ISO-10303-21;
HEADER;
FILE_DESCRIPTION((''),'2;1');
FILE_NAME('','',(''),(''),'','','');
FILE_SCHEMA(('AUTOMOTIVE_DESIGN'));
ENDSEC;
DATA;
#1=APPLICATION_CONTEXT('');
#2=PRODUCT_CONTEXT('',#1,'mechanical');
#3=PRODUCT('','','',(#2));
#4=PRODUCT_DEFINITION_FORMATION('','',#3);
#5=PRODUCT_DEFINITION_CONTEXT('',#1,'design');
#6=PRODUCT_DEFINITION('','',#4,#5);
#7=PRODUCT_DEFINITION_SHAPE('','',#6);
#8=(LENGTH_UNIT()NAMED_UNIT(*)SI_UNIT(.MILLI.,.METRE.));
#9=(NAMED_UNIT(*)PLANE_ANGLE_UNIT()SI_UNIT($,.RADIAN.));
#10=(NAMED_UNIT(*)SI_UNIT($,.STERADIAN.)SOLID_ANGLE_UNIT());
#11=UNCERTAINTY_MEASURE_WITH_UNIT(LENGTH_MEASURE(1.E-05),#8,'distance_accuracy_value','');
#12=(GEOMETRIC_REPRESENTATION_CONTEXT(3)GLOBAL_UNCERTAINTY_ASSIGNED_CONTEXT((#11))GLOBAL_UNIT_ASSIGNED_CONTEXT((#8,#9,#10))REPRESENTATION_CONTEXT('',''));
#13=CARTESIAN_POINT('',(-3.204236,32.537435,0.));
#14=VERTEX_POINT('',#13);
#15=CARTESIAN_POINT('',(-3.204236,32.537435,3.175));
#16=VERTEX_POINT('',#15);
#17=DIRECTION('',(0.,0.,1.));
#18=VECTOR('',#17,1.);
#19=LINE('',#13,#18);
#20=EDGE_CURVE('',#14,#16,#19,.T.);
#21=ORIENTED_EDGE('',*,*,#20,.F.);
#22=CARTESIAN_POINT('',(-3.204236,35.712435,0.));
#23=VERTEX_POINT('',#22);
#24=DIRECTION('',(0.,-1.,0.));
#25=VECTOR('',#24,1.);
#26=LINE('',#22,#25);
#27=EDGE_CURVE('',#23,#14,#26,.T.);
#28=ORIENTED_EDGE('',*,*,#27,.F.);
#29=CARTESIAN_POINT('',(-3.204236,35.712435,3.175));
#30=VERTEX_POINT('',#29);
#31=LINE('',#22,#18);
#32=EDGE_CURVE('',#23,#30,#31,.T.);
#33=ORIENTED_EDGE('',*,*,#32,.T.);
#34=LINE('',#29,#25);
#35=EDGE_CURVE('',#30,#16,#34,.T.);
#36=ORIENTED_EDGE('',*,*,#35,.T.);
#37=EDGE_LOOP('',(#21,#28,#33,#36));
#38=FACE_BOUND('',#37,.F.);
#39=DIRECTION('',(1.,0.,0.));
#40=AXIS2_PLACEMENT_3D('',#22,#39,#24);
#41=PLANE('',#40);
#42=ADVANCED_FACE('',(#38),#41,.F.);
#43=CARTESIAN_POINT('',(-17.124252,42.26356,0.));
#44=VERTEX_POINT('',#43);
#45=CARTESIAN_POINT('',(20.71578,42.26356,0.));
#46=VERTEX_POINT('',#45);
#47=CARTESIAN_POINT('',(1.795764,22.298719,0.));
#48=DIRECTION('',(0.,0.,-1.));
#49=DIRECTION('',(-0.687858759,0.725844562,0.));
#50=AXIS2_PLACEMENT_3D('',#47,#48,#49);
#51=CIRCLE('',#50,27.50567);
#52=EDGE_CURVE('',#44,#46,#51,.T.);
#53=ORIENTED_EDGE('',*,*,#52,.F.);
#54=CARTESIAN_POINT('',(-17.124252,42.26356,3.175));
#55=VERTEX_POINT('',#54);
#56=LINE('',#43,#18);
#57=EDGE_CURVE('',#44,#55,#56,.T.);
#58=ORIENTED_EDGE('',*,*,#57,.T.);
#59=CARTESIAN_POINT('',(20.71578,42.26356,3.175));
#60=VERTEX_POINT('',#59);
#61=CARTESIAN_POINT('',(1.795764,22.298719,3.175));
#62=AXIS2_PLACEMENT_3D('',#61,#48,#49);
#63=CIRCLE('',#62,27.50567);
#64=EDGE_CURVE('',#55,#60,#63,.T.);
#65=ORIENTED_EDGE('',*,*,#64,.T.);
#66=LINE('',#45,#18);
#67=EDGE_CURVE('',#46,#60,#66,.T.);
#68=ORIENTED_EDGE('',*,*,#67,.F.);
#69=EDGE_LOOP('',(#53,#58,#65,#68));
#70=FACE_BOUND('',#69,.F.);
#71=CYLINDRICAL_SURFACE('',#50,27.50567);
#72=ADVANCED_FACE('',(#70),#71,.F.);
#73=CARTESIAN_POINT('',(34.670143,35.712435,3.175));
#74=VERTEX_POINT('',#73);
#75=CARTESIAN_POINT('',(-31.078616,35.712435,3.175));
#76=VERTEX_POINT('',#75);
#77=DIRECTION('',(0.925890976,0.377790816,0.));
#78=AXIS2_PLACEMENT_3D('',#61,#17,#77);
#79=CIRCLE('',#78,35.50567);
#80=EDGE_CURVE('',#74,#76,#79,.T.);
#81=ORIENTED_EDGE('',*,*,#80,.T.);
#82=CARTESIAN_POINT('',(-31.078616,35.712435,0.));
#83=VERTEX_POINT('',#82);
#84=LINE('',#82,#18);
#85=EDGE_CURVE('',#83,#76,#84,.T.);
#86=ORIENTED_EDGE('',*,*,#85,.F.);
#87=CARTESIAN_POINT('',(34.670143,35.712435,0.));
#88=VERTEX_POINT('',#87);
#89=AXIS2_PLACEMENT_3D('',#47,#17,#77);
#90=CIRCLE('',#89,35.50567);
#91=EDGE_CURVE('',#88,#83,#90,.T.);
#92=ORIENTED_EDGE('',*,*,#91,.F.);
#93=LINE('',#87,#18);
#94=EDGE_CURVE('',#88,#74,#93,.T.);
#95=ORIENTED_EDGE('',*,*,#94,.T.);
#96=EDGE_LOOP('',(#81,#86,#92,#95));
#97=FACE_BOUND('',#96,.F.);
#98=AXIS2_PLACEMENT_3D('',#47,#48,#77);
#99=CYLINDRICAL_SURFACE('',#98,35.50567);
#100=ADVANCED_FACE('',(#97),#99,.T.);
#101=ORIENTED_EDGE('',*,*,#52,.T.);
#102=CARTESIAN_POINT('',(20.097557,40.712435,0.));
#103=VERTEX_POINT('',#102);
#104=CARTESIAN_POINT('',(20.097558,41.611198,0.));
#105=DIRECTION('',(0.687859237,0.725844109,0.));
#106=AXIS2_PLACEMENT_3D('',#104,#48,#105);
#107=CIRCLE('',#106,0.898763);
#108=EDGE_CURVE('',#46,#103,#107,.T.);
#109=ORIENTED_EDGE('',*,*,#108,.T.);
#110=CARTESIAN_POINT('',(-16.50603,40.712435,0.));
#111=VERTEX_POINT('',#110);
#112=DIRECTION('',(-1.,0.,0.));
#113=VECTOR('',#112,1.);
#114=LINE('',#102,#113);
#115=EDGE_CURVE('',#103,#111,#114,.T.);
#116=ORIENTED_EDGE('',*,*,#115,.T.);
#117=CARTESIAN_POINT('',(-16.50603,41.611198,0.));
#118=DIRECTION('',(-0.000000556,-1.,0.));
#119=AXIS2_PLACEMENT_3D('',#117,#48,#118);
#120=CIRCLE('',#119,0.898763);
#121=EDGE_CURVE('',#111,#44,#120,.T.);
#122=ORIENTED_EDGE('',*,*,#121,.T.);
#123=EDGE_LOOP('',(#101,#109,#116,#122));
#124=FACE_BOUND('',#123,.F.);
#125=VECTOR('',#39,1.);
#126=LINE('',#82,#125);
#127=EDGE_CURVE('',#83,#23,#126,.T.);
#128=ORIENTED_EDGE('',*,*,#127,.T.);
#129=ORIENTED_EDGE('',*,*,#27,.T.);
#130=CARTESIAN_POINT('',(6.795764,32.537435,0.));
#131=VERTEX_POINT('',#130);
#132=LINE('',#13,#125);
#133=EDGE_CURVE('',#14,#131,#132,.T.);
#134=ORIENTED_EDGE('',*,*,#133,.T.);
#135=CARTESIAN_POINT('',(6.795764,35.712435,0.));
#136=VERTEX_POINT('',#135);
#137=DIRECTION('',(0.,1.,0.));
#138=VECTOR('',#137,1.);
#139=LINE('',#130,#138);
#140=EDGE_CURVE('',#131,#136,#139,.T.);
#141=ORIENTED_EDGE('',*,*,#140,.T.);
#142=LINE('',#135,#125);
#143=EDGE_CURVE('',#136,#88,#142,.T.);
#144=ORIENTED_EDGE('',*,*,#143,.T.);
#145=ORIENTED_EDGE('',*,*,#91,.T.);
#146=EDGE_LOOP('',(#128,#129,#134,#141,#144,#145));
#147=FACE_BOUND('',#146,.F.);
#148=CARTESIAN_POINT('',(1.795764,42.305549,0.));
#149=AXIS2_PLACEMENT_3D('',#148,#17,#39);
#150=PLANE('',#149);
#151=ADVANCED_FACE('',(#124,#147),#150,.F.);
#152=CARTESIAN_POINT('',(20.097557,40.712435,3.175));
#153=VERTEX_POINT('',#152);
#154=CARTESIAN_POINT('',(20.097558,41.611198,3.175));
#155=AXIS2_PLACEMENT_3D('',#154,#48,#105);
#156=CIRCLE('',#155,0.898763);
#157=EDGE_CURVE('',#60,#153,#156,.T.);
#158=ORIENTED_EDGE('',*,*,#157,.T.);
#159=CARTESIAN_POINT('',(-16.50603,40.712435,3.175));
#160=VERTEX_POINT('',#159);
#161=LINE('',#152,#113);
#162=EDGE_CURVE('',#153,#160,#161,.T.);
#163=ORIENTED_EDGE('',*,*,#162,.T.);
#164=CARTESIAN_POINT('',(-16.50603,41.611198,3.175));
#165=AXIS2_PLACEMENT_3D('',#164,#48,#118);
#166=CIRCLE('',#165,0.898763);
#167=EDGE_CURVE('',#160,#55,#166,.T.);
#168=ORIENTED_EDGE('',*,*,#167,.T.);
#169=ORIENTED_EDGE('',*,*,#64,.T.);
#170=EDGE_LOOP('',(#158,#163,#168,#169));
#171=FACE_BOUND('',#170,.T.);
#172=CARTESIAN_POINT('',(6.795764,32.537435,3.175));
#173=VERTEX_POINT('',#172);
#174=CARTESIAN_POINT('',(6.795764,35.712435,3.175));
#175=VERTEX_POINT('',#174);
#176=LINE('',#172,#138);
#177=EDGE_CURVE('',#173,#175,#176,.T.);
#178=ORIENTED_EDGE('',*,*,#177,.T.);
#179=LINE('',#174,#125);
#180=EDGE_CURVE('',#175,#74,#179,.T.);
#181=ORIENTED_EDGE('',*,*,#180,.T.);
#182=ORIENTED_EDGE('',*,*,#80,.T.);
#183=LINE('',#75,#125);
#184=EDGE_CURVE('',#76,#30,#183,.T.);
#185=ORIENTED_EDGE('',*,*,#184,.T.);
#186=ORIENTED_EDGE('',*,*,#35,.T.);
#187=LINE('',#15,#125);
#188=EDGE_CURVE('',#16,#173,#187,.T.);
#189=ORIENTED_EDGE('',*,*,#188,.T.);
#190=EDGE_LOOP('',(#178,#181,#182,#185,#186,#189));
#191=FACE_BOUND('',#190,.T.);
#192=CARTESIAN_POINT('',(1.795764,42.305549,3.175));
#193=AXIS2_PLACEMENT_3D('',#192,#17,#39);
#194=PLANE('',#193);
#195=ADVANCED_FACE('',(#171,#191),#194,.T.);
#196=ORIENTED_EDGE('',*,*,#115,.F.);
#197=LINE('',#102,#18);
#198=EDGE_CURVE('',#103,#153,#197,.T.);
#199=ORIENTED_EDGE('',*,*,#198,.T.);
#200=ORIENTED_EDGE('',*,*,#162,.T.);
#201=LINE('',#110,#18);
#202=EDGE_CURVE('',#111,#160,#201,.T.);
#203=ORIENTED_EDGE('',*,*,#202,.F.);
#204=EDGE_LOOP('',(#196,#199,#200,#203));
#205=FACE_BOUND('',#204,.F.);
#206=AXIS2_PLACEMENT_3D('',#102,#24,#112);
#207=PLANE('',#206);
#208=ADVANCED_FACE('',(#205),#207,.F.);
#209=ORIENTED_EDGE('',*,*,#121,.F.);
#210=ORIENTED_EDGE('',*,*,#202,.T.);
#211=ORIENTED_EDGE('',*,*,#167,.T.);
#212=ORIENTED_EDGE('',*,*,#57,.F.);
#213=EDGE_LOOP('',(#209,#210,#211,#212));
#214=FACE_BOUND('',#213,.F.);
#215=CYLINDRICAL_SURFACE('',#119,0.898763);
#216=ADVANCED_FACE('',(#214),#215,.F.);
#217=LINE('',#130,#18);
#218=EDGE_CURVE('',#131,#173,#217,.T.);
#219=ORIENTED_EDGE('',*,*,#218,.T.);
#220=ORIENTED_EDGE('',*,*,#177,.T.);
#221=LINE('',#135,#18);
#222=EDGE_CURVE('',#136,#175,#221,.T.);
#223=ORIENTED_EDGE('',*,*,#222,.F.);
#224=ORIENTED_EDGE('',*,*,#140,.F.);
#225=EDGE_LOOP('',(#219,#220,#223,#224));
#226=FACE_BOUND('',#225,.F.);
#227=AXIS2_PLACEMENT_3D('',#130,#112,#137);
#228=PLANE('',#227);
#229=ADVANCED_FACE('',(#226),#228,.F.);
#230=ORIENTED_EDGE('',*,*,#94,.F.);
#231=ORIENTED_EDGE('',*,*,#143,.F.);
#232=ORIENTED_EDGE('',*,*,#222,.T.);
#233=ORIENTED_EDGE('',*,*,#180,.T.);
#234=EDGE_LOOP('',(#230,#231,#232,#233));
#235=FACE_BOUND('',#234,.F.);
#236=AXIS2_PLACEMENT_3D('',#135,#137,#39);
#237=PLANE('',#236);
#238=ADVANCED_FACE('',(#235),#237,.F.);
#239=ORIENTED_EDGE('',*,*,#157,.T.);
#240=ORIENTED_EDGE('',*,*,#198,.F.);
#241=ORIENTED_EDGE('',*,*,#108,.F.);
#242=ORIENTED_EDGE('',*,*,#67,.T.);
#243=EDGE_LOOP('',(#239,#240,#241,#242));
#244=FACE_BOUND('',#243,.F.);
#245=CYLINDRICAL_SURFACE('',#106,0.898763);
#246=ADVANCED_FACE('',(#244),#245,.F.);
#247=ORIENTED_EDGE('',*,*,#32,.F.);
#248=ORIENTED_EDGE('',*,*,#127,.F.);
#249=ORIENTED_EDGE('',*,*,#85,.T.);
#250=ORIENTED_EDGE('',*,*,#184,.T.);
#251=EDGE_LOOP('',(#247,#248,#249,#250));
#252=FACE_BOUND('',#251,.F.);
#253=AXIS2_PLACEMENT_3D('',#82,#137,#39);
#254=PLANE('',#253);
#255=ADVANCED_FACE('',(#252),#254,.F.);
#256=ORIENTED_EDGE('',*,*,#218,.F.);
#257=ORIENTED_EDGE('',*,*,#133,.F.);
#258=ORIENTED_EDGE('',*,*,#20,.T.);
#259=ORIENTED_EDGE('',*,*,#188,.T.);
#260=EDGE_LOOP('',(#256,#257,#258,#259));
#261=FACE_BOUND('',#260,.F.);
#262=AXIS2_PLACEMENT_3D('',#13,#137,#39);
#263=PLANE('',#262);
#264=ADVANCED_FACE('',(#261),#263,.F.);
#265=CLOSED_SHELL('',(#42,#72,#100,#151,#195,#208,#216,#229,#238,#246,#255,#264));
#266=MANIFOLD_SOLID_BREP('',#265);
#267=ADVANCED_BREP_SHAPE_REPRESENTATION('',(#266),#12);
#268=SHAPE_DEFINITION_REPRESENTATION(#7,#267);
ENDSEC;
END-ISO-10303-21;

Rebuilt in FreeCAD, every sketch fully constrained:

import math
import FreeCAD as App
import Part
import Sketcher
from FreeCAD import Vector

doc = App.newDocument("Part")
body = doc.addObject("PartDesign::Body", "Body")

# Sketch on XY plane
sketch1 = doc.addObject("Sketcher::SketchObject", "Sketch")
body.addObject(sketch1)
sketch1.AttachmentSupport = (doc.XY_Plane, [""])
sketch1.MapMode = "FlatFace"
sketch1.addGeometry([
    Part.LineSegment(Vector(6.8, 35.7, 0), Vector(34.7, 35.7, 0)),  # 0
    Part.ArcOfCircle(Part.Circle(Vector(1.8, 22.3, 0), Vector(0, 0, 1), 35.5), math.radians(22), math.radians(158)),  # 1
    Part.LineSegment(Vector(-31.1, 35.7, 0), Vector(-3.2, 35.7, 0)),  # 2
    Part.LineSegment(Vector(-3.2, 35.7, 0), Vector(-3.2, 32.5, 0)),  # 3
    Part.LineSegment(Vector(-3.2, 32.5, 0), Vector(6.8, 32.5, 0)),  # 4
    Part.LineSegment(Vector(6.8, 32.5, 0), Vector(6.8, 35.7, 0)),  # 5
    Part.ArcOfCircle(Part.Circle(Vector(-16.5, 41.6, 0), Vector(0, 0, 1), 0.9), math.radians(133), math.radians(270)),  # 6
    Part.ArcOfCircle(Part.Circle(Vector(1.8, 22.3, 0), Vector(0, 0, 1), 27.5), math.radians(47), math.radians(133)),  # 7
    Part.ArcOfCircle(Part.Circle(Vector(20.1, 41.6, 0), Vector(0, 0, 1), 0.9), math.radians(-90), math.radians(47)),  # 8
    Part.LineSegment(Vector(20.1, 40.7, 0), Vector(-16.5, 40.7, 0)),  # 9
], False)
sketch1.addConstraint([
    Sketcher.Constraint("Coincident", 0, 2, 1, 1),
    Sketcher.Constraint("Coincident", 1, 2, 2, 1),
    Sketcher.Constraint("Coincident", 2, 2, 3, 1),
    Sketcher.Constraint("Coincident", 3, 2, 4, 1),
    Sketcher.Constraint("Coincident", 4, 2, 5, 1),
    Sketcher.Constraint("Coincident", 5, 2, 0, 1),
    Sketcher.Constraint("Tangent", 6, 1, 7, 2),
    Sketcher.Constraint("Tangent", 7, 1, 8, 2),
    Sketcher.Constraint("Tangent", 8, 1, 9, 1),
    Sketcher.Constraint("Tangent", 9, 2, 6, 2),
    Sketcher.Constraint("Horizontal", 0),
    Sketcher.Constraint("Horizontal", 2),
    Sketcher.Constraint("Vertical", 3),
    Sketcher.Constraint("Horizontal", 4),
    Sketcher.Constraint("Vertical", 5),
    Sketcher.Constraint("Horizontal", 9),
    Sketcher.Constraint("Coincident", 7, 3, 1, 3),
    Sketcher.Constraint("Equal", 6, 8),
    Sketcher.Constraint("Horizontal", 0, 2, 1, 2),
    Sketcher.Constraint("Equal", 0, 2),
    Sketcher.Constraint("DistanceX", 4, 1, 4, 2, 10.0),
    Sketcher.Constraint("DistanceY", 5, 2, 8, 1, 5.0),
    Sketcher.Constraint("DistanceY", 3, 2, 3, 1, 3.175),
    Sketcher.Constraint("Radius", 1, 35.50567),
    Sketcher.Constraint("Radius", 7, 27.50567),
    Sketcher.Constraint("Radius", 6, 0.898763),
    Sketcher.Constraint("DistanceX", 0, 1, 0, 2, 27.874379),
    Sketcher.Constraint("DistanceY", -1, 1, 6, 3, 41.611198),
    Sketcher.Constraint("DistanceX", 6, 3, -1, 1, 16.50603),
])
pad1 = doc.addObject("PartDesign::Pad", "Pad")
body.addObject(pad1)
pad1.Profile = sketch1
pad1.Length = 3.175

doc.recompute()
